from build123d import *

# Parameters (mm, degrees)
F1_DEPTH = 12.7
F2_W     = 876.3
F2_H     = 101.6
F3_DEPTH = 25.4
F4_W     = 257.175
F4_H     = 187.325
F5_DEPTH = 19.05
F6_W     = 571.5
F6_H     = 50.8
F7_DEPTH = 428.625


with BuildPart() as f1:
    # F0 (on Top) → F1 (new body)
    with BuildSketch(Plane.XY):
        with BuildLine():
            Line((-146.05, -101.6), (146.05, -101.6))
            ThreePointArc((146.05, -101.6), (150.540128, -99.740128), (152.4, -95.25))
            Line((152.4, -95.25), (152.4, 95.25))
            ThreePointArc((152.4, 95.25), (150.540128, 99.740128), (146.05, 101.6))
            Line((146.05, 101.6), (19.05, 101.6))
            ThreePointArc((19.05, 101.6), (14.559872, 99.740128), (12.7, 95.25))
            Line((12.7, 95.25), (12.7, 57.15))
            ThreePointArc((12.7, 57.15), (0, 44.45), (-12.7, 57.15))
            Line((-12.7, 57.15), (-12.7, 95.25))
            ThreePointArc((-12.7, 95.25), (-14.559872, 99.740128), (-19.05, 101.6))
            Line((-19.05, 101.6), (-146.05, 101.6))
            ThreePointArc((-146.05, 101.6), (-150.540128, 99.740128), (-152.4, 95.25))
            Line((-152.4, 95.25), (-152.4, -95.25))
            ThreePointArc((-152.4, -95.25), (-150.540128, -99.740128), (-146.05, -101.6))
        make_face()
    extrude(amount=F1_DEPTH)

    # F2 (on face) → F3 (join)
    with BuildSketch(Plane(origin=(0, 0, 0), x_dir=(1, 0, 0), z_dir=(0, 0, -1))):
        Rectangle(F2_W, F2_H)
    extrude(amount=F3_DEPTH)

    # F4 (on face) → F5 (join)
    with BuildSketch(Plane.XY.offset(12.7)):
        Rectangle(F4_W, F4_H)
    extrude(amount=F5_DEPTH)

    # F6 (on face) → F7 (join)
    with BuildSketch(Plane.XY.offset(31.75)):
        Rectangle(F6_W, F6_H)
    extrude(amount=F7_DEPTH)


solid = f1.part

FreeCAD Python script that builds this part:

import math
import FreeCAD as App
import Part
import Sketcher

V = App.Vector
Q = App.Units.Quantity


def add_polygon(sketch, points):
    """Adds a closed chain of lines whose ends are joined by coincident constraints."""
    first, n = sketch.GeometryCount, len(points)
    for a, b in zip(points, points[1:] + points[:1]):
        sketch.addGeometry(Part.LineSegment(App.Vector(*a, 0), App.Vector(*b, 0)), False)
    for i in range(n):
        sketch.addConstraint(Sketcher.Constraint("Coincident", first + i, 2, first + (i + 1) % n, 1))

doc = App.newDocument("Part")
params = doc.addObject("Spreadsheet::Sheet", "Params")
for row, (alias, value) in enumerate([
    ("sketch1_radius", "0.5 in"),
    ("sketch1_width", "5 in"),
    ("sketch1_radius2", "0.25 in"),
    ("sketch1_height", "7.5 in"),
    ("sketch1_height2", "1.5 in"),
    ("pad1_length", "0.5 in"),
    ("sketch2_height", "4 in"),
    ("sketch2_width", "34.5 in"),
    ("pad2_length", "1 in"),
    ("sketch3_width", "10.125 in"),
    ("sketch3_height", "7.375 in"),
    ("pad3_length", "0.75 in"),
    ("sketch4_height", "2 in"),
    ("sketch4_width", "22.5 in"),
    ("pad4_length", "16.875 in"),
], start=1):
    params.set(f"A{row}", alias)
    params.set(f"B{row}", "=" + value)
    params.setAlias(f"B{row}", alias)

body = doc.addObject("PartDesign::Body", "Body")

sketch1 = body.newObject("Sketcher::SketchObject", "Sketch")
sketch1.AttachmentSupport = (doc.getObject("XY_Plane"), [""])
sketch1.MapMode = "FlatFace"
sketch1.addGeometry(Part.LineSegment(V(-146, -102, 0), V(146, -102, 0)), False)
sketch1.addGeometry(Part.ArcOfCircle(Part.Circle(V(146, -95, 0), V(0, 0, 1), 6), math.radians(-90), math.radians(0)), False)
sketch1.addGeometry(Part.LineSegment(V(152, -95, 0), V(152, 95, 0)), False)
sketch1.addGeometry(Part.ArcOfCircle(Part.Circle(V(146, 95, 0), V(0, 0, 1), 6), math.radians(0), math.radians(90)), False)
sketch1.addGeometry(Part.LineSegment(V(146, 102, 0), V(19, 102, 0)), False)
sketch1.addGeometry(Part.ArcOfCircle(Part.Circle(V(19, 95, 0), V(0, 0, 1), 6), math.radians(90), math.radians(180)), False)
sketch1.addGeometry(Part.LineSegment(V(13, 95, 0), V(13, 57, 0)), False)
sketch1.addGeometry(Part.ArcOfCircle(Part.Circle(V(0, 57, 0), V(0, 0, 1), 13), math.radians(180), math.radians(360)), False)
sketch1.addGeometry(Part.LineSegment(V(-13, 57, 0), V(-13, 95, 0)), False)
sketch1.addGeometry(Part.ArcOfCircle(Part.Circle(V(-19, 95, 0), V(0, 0, 1), 6), math.radians(0), math.radians(90)), False)
sketch1.addGeometry(Part.LineSegment(V(-19, 102, 0), V(-146, 102, 0)), False)
sketch1.addGeometry(Part.ArcOfCircle(Part.Circle(V(-146, 95, 0), V(0, 0, 1), 6), math.radians(90), math.radians(180)), False)
sketch1.addGeometry(Part.LineSegment(V(-152, 95, 0), V(-152, -95, 0)), False)
sketch1.addGeometry(Part.ArcOfCircle(Part.Circle(V(-146, -95, 0), V(0, 0, 1), 6), math.radians(-180), math.radians(-90)), False)
sketch1.addConstraint(Sketcher.Constraint("Tangent", 0, 2, 1, 1))
sketch1.addConstraint(Sketcher.Constraint("Tangent", 1, 2, 2, 1))
sketch1.addConstraint(Sketcher.Constraint("Tangent", 2, 2, 3, 1))
sketch1.addConstraint(Sketcher.Constraint("Tangent", 3, 2, 4, 1))
sketch1.addConstraint(Sketcher.Constraint("Tangent", 4, 2, 5, 1))
sketch1.addConstraint(Sketcher.Constraint("Tangent", 5, 2, 6, 1))
sketch1.addConstraint(Sketcher.Constraint("Tangent", 6, 2, 7, 2))
sketch1.addConstraint(Sketcher.Constraint("Tangent", 7, 1, 8, 1))
sketch1.addConstraint(Sketcher.Constraint("Tangent", 8, 2, 9, 1))
sketch1.addConstraint(Sketcher.Constraint("Tangent", 9, 2, 10, 1))
sketch1.addConstraint(Sketcher.Constraint("Tangent", 10, 2, 11, 1))
sketch1.addConstraint(Sketcher.Constraint("Tangent", 11, 2, 12, 1))
sketch1.addConstraint(Sketcher.Constraint("Tangent", 12, 2, 13, 1))
sketch1.addConstraint(Sketcher.Constraint("Tangent", 13, 2, 0, 1))
sketch1.addConstraint(Sketcher.Constraint("Horizontal", 0))
sketch1.addConstraint(Sketcher.Constraint("Vertical", 2))
sketch1.addConstraint(Sketcher.Constraint("Horizontal", 4))
sketch1.addConstraint(Sketcher.Constraint("Vertical", 6))
sketch1.addConstraint(Sketcher.Constraint("Vertical", 8))
sketch1.addConstraint(Sketcher.Constraint("Horizontal", 10))
sketch1.addConstraint(Sketcher.Constraint("Vertical", 12))
sketch1.addConstraint(Sketcher.Constraint("Equal", 1, 3))
sketch1.addConstraint(Sketcher.Constraint("Equal", 3, 5))
sketch1.addConstraint(Sketcher.Constraint("Equal", 5, 9))
sketch1.addConstraint(Sketcher.Constraint("Equal", 9, 11))
sketch1.addConstraint(Sketcher.Constraint("Equal", 11, 13))
sketch1.addConstraint(Sketcher.Constraint("Symmetric", 1, 3, 11, 3, -1, 1))
sketch1.addConstraint(Sketcher.Constraint("Symmetric", 5, 3, 9, 3, -2))
sketch1.addConstraint(Sketcher.Constraint("Radius", 7, Q("0.5 in")))
sketch1.addConstraint(Sketcher.Constraint("DistanceX", 4, 2, 4, 1, Q("5 in")))
sketch1.addConstraint(Sketcher.Constraint("Radius", 1, Q("0.25 in")))
sketch1.addConstraint(Sketcher.Constraint("DistanceY", 2, 1, 2, 2, Q("7.5 in")))
sketch1.addConstraint(Sketcher.Constraint("DistanceY", 6, 2, 6, 1, Q("1.5 in")))
sketch1.setExpression("Constraints[28]", "Params.sketch1_radius")
sketch1.setExpression("Constraints[29]", "Params.sketch1_width")
sketch1.setExpression("Constraints[30]", "Params.sketch1_radius2")
sketch1.setExpression("Constraints[31]", "Params.sketch1_height")
sketch1.setExpression("Constraints[32]", "Params.sketch1_height2")
pad1 = body.newObject("PartDesign::Pad", "Pad")
pad1.Profile = sketch1
pad1.setExpression("Length", "Params.pad1_length")

sketch2 = body.newObject("Sketcher::SketchObject", "Sketch001")
sketch2.AttachmentSupport = (doc.getObject("XY_Plane"), [""])
sketch2.MapMode = "FlatFace"
add_polygon(sketch2, [(-438, -51), (-438, 51), (438, 51), (438, -51)])
sketch2.addConstraint(Sketcher.Constraint("Vertical", 0))
sketch2.addConstraint(Sketcher.Constraint("Horizontal", 1))
sketch2.addConstraint(Sketcher.Constraint("Vertical", 2))
sketch2.addConstraint(Sketcher.Constraint("Horizontal", 3))
sketch2.addConstraint(Sketcher.Constraint("Symmetric", 0, 2, 2, 2, -1, 1))
sketch2.addConstraint(Sketcher.Constraint("DistanceY", 0, 1, 0, 2, Q("4 in")))
sketch2.addConstraint(Sketcher.Constraint("DistanceX", 1, 1, 1, 2, Q("34.5 in")))
sketch2.setExpression("Constraints[9]", "Params.sketch2_height")
sketch2.setExpression("Constraints[10]", "Params.sketch2_width")
pad2 = body.newObject("PartDesign::Pad", "Pad001")
pad2.Profile = sketch2
pad2.setExpression("Length", "Params.pad2_length")
pad2.Reversed = True

sketch3 = body.newObject("Sketcher::SketchObject", "Sketch002")
sketch3.AttachmentSupport = (doc.getObject("XY_Plane"), [""])
sketch3.MapMode = "FlatFace"
sketch3.AttachmentOffset = App.Placement(V(0, 0, 0.5 * 25.4), App.Rotation())
add_polygon(sketch3, [(-129, 94), (-129, -94), (129, -94), (129, 94)])
sketch3.addConstraint(Sketcher.Constraint("Vertical", 0))
sketch3.addConstraint(Sketcher.Constraint("Horizontal", 1))
sketch3.addConstraint(Sketcher.Constraint("Vertical", 2))
sketch3.addConstraint(Sketcher.Constraint("Horizontal", 3))
sketch3.addConstraint(Sketcher.Constraint("Symmetric", 0, 2, 2, 2, -1, 1))
sketch3.addConstraint(Sketcher.Constraint("DistanceX", 1, 1, 1, 2, Q("10.125 in")))
sketch3.addConstraint(Sketcher.Constraint("DistanceY", 0, 2, 0, 1, Q("7.375 in")))
sketch3.setExpression("Constraints[9]", "Params.sketch3_width")
sketch3.setExpression("Constraints[10]", "Params.sketch3_height")
pad3 = body.newObject("PartDesign::Pad", "Pad002")
pad3.Profile = sketch3
pad3.setExpression("Length", "Params.pad3_length")

sketch4 = body.newObject("Sketcher::SketchObject", "Sketch003")
sketch4.AttachmentSupport = (doc.getObject("XY_Plane"), [""])
sketch4.MapMode = "FlatFace"
sketch4.AttachmentOffset = App.Placement(V(0, 0, 1.25 * 25.4), App.Rotation())
add_polygon(sketch4, [(-286, 25), (-286, -25), (286, -25), (286, 25)])
sketch4.addConstraint(Sketcher.Constraint("Vertical", 0))
sketch4.addConstraint(Sketcher.Constraint("Horizontal", 1))
sketch4.addConstraint(Sketcher.Constraint("Vertical", 2))
sketch4.addConstraint(Sketcher.Constraint("Horizontal", 3))
sketch4.addConstraint(Sketcher.Constraint("Symmetric", 0, 2, 2, 2, -1, 1))
sketch4.addConstraint(Sketcher.Constraint("DistanceY", 0, 2, 0, 1, Q("2 in")))
sketch4.addConstraint(Sketcher.Constraint("DistanceX", 1, 1, 1, 2, Q("22.5 in")))
sketch4.setExpression("Constraints[9]", "Params.sketch4_height")
sketch4.setExpression("Constraints[10]", "Params.sketch4_width")
pad4 = body.newObject("PartDesign::Pad", "Pad003")
pad4.Profile = sketch4
pad4.setExpression("Length", "Params.pad4_length")

doc.recompute()
